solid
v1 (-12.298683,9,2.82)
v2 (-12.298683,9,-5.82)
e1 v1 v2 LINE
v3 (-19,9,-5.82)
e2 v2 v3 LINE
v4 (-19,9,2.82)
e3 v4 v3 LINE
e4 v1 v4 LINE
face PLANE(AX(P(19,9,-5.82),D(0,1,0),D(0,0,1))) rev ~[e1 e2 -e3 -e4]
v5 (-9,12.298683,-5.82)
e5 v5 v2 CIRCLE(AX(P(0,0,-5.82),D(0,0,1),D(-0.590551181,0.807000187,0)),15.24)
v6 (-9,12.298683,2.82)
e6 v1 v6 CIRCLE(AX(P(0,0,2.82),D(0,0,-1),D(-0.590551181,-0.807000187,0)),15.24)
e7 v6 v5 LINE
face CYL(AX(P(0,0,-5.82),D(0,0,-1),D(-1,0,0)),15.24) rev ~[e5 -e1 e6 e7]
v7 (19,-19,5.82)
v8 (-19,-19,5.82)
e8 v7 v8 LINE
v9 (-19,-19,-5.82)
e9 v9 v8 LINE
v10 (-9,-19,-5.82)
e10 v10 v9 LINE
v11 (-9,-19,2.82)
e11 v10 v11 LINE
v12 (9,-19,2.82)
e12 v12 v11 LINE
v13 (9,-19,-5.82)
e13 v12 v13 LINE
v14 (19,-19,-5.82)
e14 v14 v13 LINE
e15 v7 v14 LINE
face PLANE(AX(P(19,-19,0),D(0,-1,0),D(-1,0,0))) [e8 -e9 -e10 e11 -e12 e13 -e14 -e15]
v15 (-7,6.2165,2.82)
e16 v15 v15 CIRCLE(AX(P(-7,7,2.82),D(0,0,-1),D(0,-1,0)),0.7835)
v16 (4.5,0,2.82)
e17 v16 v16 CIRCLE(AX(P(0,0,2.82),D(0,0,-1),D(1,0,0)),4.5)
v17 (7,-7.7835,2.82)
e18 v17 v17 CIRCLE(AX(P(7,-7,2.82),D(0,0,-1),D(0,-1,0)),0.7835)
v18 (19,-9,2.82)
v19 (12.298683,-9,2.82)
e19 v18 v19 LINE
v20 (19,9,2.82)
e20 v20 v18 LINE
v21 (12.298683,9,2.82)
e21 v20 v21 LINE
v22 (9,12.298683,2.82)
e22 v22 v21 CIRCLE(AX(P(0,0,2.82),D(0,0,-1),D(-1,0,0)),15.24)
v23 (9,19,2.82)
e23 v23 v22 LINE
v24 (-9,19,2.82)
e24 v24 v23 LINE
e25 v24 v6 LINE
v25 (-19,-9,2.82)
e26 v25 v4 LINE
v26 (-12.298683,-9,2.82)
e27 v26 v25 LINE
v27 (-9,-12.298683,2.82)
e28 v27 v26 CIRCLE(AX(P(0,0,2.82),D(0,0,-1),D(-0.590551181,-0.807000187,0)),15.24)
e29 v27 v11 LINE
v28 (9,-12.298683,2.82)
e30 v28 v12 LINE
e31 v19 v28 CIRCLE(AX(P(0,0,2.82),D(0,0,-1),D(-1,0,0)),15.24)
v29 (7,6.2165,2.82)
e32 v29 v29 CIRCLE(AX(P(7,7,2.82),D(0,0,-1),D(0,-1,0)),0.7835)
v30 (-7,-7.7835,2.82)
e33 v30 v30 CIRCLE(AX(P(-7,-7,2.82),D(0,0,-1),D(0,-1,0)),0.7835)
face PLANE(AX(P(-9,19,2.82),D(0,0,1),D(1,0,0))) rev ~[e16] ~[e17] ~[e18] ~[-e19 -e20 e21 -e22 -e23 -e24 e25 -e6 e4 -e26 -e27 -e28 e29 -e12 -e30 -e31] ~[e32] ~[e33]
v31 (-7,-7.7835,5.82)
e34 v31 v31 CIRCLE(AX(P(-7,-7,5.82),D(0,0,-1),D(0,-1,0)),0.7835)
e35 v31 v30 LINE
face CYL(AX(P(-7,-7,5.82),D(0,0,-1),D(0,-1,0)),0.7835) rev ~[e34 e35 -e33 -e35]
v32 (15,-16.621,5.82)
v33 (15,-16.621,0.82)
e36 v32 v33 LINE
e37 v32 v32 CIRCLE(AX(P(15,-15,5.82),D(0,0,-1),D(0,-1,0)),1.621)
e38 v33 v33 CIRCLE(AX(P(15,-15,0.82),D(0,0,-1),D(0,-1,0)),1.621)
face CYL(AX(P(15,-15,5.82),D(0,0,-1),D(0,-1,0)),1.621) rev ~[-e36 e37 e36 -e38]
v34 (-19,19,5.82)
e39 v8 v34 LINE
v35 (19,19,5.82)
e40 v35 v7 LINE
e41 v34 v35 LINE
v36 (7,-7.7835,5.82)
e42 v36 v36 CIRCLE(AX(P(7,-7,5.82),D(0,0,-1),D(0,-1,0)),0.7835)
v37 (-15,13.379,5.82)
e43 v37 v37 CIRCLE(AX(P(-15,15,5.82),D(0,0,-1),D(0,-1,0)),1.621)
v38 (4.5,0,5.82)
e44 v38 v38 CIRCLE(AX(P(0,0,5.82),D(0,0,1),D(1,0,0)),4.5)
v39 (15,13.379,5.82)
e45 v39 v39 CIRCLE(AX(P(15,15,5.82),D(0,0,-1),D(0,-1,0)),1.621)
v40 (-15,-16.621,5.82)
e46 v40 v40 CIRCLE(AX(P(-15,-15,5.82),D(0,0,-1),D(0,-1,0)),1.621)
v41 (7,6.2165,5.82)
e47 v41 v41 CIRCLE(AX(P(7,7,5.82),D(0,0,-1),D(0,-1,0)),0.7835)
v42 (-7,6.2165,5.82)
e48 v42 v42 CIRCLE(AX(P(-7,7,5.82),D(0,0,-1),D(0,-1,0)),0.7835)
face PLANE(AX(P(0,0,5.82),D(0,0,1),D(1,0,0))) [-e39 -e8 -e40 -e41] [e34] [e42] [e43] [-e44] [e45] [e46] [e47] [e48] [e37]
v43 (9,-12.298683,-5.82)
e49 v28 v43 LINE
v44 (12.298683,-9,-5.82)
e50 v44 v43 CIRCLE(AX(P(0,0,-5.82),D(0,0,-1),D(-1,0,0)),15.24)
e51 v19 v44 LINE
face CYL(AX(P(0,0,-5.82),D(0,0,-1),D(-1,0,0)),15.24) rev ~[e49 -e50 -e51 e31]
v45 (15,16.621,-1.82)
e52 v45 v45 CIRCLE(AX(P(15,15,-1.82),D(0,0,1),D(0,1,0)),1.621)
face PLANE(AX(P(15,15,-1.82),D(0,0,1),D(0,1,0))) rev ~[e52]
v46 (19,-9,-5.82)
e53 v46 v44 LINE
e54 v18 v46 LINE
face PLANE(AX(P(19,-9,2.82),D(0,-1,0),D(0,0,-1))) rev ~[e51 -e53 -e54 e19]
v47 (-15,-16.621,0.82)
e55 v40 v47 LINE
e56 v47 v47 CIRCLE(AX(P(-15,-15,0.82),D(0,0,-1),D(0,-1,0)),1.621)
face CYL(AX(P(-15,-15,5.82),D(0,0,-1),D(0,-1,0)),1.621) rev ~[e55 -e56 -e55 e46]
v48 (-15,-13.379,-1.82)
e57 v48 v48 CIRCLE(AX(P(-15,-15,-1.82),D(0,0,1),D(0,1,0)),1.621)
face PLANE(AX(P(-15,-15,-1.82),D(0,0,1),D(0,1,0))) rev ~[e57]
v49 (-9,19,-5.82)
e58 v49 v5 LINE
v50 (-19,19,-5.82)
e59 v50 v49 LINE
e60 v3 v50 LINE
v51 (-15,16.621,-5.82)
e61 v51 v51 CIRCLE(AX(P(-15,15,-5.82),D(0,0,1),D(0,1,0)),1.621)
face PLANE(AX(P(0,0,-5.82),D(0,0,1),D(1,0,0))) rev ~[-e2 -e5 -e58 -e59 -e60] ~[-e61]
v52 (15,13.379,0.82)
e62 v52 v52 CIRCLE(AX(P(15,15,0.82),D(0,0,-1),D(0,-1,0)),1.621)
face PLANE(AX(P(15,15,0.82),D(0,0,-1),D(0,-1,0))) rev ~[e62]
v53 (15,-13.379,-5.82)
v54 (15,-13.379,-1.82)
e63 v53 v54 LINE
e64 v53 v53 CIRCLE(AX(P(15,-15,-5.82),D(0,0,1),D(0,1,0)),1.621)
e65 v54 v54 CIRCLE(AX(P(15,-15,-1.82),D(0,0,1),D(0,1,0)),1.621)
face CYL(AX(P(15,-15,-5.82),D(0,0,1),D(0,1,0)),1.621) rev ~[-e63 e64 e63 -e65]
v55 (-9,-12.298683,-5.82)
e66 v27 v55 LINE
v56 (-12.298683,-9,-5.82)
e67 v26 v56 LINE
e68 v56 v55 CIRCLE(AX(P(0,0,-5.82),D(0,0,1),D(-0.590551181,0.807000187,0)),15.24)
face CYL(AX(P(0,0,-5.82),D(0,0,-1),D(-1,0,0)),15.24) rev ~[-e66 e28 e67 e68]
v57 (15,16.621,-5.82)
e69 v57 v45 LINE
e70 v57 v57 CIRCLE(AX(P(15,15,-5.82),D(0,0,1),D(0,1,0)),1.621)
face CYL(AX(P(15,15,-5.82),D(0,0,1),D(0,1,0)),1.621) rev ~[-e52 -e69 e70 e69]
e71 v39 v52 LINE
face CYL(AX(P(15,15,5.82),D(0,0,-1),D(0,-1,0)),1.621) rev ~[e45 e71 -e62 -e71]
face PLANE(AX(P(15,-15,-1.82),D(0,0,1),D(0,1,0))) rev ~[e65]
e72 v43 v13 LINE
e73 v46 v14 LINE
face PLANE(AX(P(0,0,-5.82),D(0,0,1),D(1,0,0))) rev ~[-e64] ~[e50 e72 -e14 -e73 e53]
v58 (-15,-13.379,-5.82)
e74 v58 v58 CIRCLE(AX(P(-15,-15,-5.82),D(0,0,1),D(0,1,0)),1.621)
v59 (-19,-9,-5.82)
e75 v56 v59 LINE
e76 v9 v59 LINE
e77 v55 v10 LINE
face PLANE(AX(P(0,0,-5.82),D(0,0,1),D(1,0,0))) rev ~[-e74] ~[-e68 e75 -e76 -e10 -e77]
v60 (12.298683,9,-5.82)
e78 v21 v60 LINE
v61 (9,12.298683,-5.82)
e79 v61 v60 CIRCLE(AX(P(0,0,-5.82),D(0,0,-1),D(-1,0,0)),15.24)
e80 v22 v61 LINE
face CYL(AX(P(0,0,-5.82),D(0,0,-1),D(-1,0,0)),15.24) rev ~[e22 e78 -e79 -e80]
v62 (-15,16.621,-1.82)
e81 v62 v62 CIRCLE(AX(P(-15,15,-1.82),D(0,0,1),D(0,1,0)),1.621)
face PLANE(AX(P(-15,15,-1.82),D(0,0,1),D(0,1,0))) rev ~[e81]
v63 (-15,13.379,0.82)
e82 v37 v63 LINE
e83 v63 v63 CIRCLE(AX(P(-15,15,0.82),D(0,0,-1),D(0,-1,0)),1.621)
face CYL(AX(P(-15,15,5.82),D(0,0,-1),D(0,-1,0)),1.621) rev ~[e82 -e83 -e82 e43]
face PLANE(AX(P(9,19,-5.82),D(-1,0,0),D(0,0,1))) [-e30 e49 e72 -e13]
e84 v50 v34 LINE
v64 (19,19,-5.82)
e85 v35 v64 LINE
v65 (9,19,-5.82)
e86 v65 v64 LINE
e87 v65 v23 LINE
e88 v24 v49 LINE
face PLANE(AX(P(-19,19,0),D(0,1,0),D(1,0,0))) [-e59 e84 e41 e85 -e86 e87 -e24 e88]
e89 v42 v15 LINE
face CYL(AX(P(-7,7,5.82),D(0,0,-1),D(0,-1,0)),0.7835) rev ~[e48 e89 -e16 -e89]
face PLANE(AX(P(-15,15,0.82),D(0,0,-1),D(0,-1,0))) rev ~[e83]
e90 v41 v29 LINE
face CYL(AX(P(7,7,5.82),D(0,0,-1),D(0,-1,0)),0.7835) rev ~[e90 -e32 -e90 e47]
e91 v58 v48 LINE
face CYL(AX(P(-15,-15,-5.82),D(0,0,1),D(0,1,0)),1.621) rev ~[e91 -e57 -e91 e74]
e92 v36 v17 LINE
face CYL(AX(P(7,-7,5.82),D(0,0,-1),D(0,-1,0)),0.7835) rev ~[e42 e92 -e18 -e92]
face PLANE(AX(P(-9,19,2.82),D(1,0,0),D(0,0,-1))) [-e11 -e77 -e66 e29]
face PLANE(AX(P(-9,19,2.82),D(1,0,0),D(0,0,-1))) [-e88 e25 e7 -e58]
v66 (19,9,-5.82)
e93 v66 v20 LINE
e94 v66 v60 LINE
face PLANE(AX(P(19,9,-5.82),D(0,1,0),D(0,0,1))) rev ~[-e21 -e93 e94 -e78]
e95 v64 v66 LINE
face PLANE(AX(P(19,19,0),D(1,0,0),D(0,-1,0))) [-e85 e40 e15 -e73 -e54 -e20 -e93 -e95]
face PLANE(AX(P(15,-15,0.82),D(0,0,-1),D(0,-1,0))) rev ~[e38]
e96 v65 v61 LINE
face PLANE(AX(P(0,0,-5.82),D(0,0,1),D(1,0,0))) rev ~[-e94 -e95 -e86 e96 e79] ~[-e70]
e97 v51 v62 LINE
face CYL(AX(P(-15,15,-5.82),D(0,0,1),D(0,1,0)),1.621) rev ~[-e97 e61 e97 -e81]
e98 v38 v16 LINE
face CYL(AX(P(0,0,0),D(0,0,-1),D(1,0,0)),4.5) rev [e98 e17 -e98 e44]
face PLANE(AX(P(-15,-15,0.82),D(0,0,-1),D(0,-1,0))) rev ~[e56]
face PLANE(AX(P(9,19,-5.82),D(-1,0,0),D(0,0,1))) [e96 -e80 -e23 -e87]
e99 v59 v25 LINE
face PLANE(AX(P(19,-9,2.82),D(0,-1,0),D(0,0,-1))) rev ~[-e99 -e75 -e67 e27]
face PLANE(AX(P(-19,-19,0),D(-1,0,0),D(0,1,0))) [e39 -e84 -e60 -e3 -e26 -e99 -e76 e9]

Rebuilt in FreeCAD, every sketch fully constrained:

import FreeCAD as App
import Part
import Sketcher
from FreeCAD import Vector
Q = App.Units.Quantity


def add_polygon(sketch, points):
    """Adds a closed chain of lines whose ends are joined by coincident constraints."""
    first, n = sketch.GeometryCount, len(points)
    for a, b in zip(points, points[1:] + points[:1]):
        sketch.addGeometry(Part.LineSegment(App.Vector(*a, 0), App.Vector(*b, 0)), False)
    for i in range(n):
        sketch.addConstraint(Sketcher.Constraint("Coincident", first + i, 2, first + (i + 1) % n, 1))

doc = App.newDocument("Part")
body = doc.addObject("PartDesign::Body", "Body")

sketch1 = body.newObject("Sketcher::SketchObject", "Sketch")
sketch1.AttachmentSupport = (doc.getObject("XY_Plane"), [""])
sketch1.MapMode = "FlatFace"
add_polygon(sketch1, [(19, 19), (-19, 19), (-19, -19), (19, -19)])
sketch1.addGeometry(Part.Circle(Vector(0, 0, 0), Vector(0, 0, 1), 4.5), False)
sketch1.addConstraint([
    Sketcher.Constraint("Horizontal", 0),
    Sketcher.Constraint("Vertical", 1),
    Sketcher.Constraint("Horizontal", 2),
    Sketcher.Constraint("Vertical", 3),
    Sketcher.Constraint("Coincident", 4, 3, -1, 1),
    Sketcher.Constraint("Symmetric", 0, 2, 2, 2, -1, 1),
    Sketcher.Constraint("Equal", 2, 1),
    Sketcher.Constraint("Diameter", 4, Q("9 mm")),
    Sketcher.Constraint("DistanceX", 0, 2, 0, 1, Q("38 mm")),
])
pad1 = body.newObject("PartDesign::Pad", "Pad")
pad1.Profile = sketch1
pad1.Length = 11.64
pad1.Midplane = True

sketch2 = body.newObject("Sketcher::SketchObject", "Sketch001")
sketch2.AttachmentSupport = (doc.getObject("XY_Plane"), [""])
sketch2.MapMode = "FlatFace"
sketch2.AttachmentOffset = App.Placement(Vector(0, 0, -5.82), App.Rotation())
sketch2.addGeometry(Part.Circle(Vector(0, 0, 0), Vector(0, 0, 1), 15), False)
sketch2.addConstraint([
    Sketcher.Constraint("Coincident", 0, 3, -1, 1),
    Sketcher.Constraint("Diameter", 0, Q("30.48 mm")),
])
pocket1 = body.newObject("PartDesign::Pocket", "Pocket")
pocket1.Profile = sketch2
pocket1.Length = 8.64
pocket1.Reversed = True

sketch3 = body.newObject("Sketcher::SketchObject", "Sketch002")
sketch3.AttachmentSupport = (doc.getObject("XZ_Plane"), [""])
sketch3.MapMode = "FlatFace"
sketch3.AttachmentOffset = App.Placement(Vector(0, 0, -19), App.Rotation())
add_polygon(sketch3, [(9, -6), (-9, -6), (-9, 3), (9, 3)])
sketch3.addConstraint([
    Sketcher.Constraint("Horizontal", 0),
    Sketcher.Constraint("Vertical", 1),
    Sketcher.Constraint("Horizontal", 2),
    Sketcher.Constraint("Vertical", 3),
    Sketcher.Constraint("DistanceX", 0, 2, 0, 1, Q("18 mm")),
    Sketcher.Constraint("DistanceX", 0, 2, -1, 1, Q("9 mm")),
    Sketcher.Constraint("DistanceY", 1, 1, 1, 2, Q("8.64 mm")),
    Sketcher.Constraint("DistanceY", 0, 2, -1, 1, Q("5.82 mm")),
])
pocket2 = body.newObject("PartDesign::Pocket", "Pocket001")
pocket2.Profile = sketch3
pocket2.Type = "ThroughAll"
pocket2.Reversed = True

sketch4 = body.newObject("Sketcher::SketchObject", "Sketch003")
sketch4.AttachmentSupport = (doc.getObject("YZ_Plane"), [""])
sketch4.MapMode = "FlatFace"
sketch4.AttachmentOffset = App.Placement(Vector(0, 0, 19), App.Rotation())
add_polygon(sketch4, [(-9, -6), (9, -6), (9, 3), (-9, 3)])
sketch4.addConstraint([
    Sketcher.Constraint("Horizontal", 0),
    Sketcher.Constraint("Vertical", 1),
    Sketcher.Constraint("Horizontal", 2),
    Sketcher.Constraint("Vertical", 3),
    Sketcher.Constraint("DistanceX", 0, 1, 0, 2, Q("18 mm")),
    Sketcher.Constraint("DistanceX", -1, 1, 0, 2, Q("9 mm")),
    Sketcher.Constraint("DistanceY", 1, 1, 1, 2, Q("8.64 mm")),
    Sketcher.Constraint("DistanceY", 0, 2, -1, 1, Q("5.82 mm")),
])
pocket3 = body.newObject("PartDesign::Pocket", "Pocket002")
pocket3.Profile = sketch4
pocket3.Type = "ThroughAll"

sketch5 = body.newObject("Sketcher::SketchObject", "Sketch004")
sketch5.AttachmentSupport = (doc.getObject("XY_Plane"), [""])
sketch5.MapMode = "FlatFace"
sketch5.AttachmentOffset = App.Placement(Vector(0, 0, -5.82), App.Rotation())
sketch5.addGeometry([
    Part.Circle(Vector(15, -15, 0), Vector(0, 0, 1), 1.6),
    Part.Circle(Vector(15, 15, 0), Vector(0, 0, 1), 1.6),
    Part.Circle(Vector(-15, 15, 0), Vector(0, 0, 1), 1.6),
    Part.Circle(Vector(-15, -15, 0), Vector(0, 0, 1), 1.6),
], False)
sketch5.addConstraint([
    Sketcher.Constraint("Equal", 0, 1),
    Sketcher.Constraint("Equal", 1, 2),
    Sketcher.Constraint("Equal", 2, 3),
    Sketcher.Constraint("Symmetric", 0, 3, 2, 3, -1, 1),
    Sketcher.Constraint("Symmetric", 1, 3, 3, 3, -1, 1),
    Sketcher.Constraint("Symmetric", 1, 3, 2, 3, -2),
    Sketcher.Constraint("Diameter", 0, Q("3.242 mm")),
    Sketcher.Constraint("DistanceX", -1, 1, 0, 3, Q("15 mm")),
    Sketcher.Constraint("DistanceY", 0, 3, -1, 1, Q("15 mm")),
])
doc.recompute()
hole = body.newObject("PartDesign::Hole", "Hole")
hole.Profile = sketch5
hole.ThreadType = "None"
hole.Diameter = 3.242
hole.DepthType = "Dimension"
hole.Depth = 4
hole.DrillPoint = "Flat"
hole.Reversed = True

sketch6 = body.newObject("Sketcher::SketchObject", "Sketch005")
sketch6.AttachmentSupport = (doc.getObject("XY_Plane"), [""])
sketch6.MapMode = "FlatFace"
sketch6.AttachmentOffset = App.Placement(Vector(0, 0, 5.82), App.Rotation())
sketch6.addGeometry([
    Part.Circle(Vector(-7, -7, 0), Vector(0, 0, 1), 0.8),
    Part.Circle(Vector(-7, 7, 0), Vector(0, 0, 1), 0.8),
    Part.Circle(Vector(7, -7, 0), Vector(0, 0, 1), 0.8),
    Part.Circle(Vector(7, 7, 0), Vector(0, 0, 1), 0.8),
], False)
sketch6.addConstraint([
    Sketcher.Constraint("Equal", 0, 1),
    Sketcher.Constraint("Equal", 1, 2),
    Sketcher.Constraint("Equal", 2, 3),
    Sketcher.Constraint("Symmetric", 1, 3, 2, 3, -1, 1),
    Sketcher.Constraint("Symmetric", 0, 3, 3, 3, -1, 1),
    Sketcher.Constraint("Symmetric", 0, 3, 2, 3, -2),
    Sketcher.Constraint("Diameter", 0, Q("1.567 mm")),
    Sketcher.Constraint("DistanceX", 0, 3, -1, 1, Q("7 mm")),
    Sketcher.Constraint("DistanceY", 0, 3, -1, 1, Q("7 mm")),
])
doc.recompute()
hole2 = body.newObject("PartDesign::Hole", "Hole001")
hole2.Profile = sketch6
hole2.ThreadType = "None"
hole2.Diameter = 1.567
hole2.DepthType = "ThroughAll"

sketch7 = body.newObject("Sketcher::SketchObject", "Sketch006")
sketch7.AttachmentSupport = (doc.getObject("XY_Plane"), [""])
sketch7.MapMode = "FlatFace"
sketch7.AttachmentOffset = App.Placement(Vector(0, 0, 5.82), App.Rotation())
sketch7.addGeometry([
    Part.Circle(Vector(15, -15, 0), Vector(0, 0, 1), 1.6),
    Part.Circle(Vector(-15, -15, 0), Vector(0, 0, 1), 1.6),
    Part.Circle(Vector(-15, 15, 0), Vector(0, 0, 1), 1.6),
    Part.Circle(Vector(15, 15, 0), Vector(0, 0, 1), 1.6),
], False)
sketch7.addConstraint([
    Sketcher.Constraint("Equal", 0, 1),
    Sketcher.Constraint("Equal", 1, 2),
    Sketcher.Constraint("Equal", 2, 3),
    Sketcher.Constraint("Symmetric", 0, 3, 2, 3, -1, 1),
    Sketcher.Constraint("Symmetric", 1, 3, 3, 3, -1, 1),
    Sketcher.Constraint("Symmetric", 0, 3, 1, 3, -2),
    Sketcher.Constraint("Diameter", 0, Q("3.242 mm")),
    Sketcher.Constraint("DistanceX", -1, 1, 0, 3, Q("15 mm")),
    Sketcher.Constraint("DistanceY", 0, 3, -1, 1, Q("15 mm")),
])
doc.recompute()
hole3 = body.newObject("PartDesign::Hole", "Hole002")
hole3.Profile = sketch7
hole3.ThreadType = "None"
hole3.Diameter = 3.242
hole3.DepthType = "Dimension"
hole3.Depth = 5
hole3.DrillPoint = "Flat"

doc.recompute()
